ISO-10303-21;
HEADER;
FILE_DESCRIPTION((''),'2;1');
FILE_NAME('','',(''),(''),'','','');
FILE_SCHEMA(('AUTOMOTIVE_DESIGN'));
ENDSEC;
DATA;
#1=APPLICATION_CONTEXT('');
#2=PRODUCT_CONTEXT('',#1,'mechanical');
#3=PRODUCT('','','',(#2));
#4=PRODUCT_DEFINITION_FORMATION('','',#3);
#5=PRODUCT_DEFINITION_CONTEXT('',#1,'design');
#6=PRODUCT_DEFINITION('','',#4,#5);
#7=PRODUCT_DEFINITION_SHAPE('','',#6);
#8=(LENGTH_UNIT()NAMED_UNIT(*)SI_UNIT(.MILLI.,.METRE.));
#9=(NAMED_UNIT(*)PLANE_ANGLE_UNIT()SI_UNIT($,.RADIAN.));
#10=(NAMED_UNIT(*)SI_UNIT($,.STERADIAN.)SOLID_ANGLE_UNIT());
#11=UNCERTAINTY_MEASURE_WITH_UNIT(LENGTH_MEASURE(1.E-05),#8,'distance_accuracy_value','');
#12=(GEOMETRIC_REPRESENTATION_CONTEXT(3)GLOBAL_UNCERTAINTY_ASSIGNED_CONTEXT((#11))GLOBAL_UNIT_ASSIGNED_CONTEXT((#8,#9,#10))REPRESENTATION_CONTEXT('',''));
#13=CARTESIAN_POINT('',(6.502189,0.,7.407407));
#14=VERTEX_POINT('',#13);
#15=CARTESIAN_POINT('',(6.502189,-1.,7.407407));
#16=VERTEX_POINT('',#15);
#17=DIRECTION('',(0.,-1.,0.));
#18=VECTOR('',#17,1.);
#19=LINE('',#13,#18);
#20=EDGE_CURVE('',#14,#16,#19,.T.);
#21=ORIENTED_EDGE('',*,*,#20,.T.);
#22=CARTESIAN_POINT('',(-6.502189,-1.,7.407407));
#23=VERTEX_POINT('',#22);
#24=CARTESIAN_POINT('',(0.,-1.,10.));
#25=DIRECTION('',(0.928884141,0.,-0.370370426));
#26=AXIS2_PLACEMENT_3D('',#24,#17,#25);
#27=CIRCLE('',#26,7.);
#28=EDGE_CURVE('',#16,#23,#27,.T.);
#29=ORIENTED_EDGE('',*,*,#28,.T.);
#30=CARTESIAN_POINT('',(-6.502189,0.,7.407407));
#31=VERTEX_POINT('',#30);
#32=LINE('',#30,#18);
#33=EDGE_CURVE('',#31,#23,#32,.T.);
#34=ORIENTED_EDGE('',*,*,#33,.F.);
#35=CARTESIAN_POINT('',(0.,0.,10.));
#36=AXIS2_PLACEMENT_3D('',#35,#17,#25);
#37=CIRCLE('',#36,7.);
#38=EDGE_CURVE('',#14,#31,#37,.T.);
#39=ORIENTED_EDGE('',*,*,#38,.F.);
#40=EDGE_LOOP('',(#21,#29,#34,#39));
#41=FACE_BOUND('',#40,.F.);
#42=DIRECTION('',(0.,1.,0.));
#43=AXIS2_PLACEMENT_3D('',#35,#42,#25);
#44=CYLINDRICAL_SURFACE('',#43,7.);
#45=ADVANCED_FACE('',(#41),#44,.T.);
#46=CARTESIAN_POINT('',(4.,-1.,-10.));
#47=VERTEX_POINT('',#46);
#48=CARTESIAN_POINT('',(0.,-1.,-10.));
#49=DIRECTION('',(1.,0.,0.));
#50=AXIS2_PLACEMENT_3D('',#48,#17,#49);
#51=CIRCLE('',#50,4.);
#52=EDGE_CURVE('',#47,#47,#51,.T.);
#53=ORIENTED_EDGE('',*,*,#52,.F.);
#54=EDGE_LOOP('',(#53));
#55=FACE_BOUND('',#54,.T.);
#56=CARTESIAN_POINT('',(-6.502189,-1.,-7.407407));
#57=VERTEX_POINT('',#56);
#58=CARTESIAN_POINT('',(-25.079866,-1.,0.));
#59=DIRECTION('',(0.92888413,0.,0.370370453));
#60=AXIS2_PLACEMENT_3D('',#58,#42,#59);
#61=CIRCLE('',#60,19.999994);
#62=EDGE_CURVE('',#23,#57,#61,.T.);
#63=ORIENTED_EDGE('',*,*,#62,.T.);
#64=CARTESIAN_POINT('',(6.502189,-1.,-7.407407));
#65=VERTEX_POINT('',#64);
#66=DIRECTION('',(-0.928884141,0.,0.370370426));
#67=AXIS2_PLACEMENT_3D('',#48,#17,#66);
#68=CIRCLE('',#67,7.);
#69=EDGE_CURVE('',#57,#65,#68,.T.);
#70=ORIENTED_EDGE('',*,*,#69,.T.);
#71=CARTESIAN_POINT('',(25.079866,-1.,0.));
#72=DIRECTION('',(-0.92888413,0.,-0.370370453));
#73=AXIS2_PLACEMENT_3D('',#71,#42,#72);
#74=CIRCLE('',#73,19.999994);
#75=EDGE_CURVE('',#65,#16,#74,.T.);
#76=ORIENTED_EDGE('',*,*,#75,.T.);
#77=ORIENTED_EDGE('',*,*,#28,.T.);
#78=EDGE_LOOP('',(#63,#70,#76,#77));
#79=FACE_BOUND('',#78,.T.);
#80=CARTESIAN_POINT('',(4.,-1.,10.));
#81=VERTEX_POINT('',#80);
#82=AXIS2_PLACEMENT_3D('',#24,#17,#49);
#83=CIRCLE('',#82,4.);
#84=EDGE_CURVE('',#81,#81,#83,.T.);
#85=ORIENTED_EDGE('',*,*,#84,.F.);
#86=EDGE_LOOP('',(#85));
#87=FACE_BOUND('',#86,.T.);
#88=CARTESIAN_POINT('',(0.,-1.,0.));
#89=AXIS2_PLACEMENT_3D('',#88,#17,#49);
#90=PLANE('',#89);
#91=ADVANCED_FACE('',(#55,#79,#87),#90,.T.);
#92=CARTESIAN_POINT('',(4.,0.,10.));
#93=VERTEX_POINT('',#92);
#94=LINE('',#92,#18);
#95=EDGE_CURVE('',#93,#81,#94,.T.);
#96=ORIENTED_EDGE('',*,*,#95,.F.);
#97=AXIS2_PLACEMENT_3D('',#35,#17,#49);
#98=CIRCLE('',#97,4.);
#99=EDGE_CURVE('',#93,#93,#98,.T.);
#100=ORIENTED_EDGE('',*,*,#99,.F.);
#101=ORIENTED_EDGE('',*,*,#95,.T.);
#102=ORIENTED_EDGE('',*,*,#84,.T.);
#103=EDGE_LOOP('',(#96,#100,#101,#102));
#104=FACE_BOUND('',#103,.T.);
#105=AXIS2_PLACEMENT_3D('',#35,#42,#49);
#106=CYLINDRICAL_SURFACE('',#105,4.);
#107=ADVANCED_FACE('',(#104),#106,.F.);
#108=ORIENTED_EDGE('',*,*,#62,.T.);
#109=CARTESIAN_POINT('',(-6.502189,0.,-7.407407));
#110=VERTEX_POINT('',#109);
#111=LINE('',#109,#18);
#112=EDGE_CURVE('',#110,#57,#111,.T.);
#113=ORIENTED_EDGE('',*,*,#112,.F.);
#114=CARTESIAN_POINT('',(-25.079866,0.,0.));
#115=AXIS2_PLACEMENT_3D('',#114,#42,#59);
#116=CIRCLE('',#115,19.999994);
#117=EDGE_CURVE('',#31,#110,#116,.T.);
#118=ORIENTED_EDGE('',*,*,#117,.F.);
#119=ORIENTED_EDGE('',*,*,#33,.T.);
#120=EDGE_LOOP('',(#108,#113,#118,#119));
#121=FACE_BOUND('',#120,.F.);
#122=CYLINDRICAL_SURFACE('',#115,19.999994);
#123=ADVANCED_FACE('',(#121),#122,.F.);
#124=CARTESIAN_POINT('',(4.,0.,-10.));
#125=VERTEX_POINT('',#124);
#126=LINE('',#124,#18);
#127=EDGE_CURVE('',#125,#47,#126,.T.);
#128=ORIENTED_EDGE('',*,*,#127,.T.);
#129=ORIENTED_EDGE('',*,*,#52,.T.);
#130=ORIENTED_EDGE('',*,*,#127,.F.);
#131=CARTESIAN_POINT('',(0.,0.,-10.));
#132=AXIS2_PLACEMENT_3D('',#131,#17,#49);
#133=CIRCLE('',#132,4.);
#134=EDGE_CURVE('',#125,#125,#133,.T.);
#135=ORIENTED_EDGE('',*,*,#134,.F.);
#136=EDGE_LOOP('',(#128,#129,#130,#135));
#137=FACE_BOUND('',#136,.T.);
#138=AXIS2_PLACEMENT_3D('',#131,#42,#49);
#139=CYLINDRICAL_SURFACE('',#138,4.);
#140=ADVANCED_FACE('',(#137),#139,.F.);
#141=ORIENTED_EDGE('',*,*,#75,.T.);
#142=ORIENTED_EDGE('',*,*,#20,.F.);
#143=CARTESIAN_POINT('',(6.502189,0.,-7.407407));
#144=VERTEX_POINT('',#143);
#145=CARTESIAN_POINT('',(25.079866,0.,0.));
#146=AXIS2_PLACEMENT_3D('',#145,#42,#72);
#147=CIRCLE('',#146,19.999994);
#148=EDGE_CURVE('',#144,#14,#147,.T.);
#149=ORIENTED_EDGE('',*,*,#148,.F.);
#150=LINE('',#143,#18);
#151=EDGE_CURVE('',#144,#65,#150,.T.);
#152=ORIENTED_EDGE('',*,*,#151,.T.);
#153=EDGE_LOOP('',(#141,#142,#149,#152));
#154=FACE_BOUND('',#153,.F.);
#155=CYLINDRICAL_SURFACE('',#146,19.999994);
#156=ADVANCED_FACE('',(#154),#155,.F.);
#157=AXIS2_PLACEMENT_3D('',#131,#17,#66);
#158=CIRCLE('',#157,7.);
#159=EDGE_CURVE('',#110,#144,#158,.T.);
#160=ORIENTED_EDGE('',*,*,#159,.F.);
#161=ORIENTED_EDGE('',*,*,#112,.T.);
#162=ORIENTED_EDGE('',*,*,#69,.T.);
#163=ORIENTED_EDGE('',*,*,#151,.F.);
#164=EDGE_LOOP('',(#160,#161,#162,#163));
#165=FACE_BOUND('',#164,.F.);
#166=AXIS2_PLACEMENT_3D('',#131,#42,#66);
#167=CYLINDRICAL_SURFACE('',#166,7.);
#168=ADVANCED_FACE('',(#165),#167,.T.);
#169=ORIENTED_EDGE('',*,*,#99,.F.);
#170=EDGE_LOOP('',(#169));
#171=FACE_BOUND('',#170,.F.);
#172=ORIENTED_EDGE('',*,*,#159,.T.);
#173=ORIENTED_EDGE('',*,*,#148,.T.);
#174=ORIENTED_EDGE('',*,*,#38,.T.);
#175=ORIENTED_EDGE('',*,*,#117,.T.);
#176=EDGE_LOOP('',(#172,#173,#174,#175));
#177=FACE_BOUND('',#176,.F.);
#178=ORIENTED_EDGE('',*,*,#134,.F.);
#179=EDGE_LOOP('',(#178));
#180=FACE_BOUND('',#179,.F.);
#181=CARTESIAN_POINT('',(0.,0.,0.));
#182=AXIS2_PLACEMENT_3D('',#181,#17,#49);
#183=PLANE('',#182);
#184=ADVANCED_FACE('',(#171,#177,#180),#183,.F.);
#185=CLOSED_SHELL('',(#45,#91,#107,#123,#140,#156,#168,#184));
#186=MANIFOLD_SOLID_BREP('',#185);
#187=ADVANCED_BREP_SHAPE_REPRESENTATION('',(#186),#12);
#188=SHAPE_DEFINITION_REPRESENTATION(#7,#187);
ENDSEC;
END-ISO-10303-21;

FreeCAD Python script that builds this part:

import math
import FreeCAD as App
import Part
import Sketcher
from FreeCAD import Vector
Q = App.Units.Quantity

doc = App.newDocument("Part")
params = doc.addObject("Spreadsheet::Sheet", "Params")
for row, (alias, value) in enumerate([
    ("sketch1_diameter", "8 mm"),
    ("sketch1_radius", "7 mm"),
    ("pad1_length", "1 mm"),
], start=1):
    params.set(f"A{row}", alias)
    params.set(f"B{row}", "=" + value)
    params.setAlias(f"B{row}", alias)

body = doc.addObject("PartDesign::Body", "Body")

sketch1 = doc.addObject("Sketcher::SketchObject", "Sketch")
body.addObject(sketch1)
sketch1.AttachmentSupport = (doc.XZ_Plane, [""])
sketch1.MapMode = "FlatFace"
sketch1.addGeometry(Part.ArcOfCircle(Part.Circle(Vector(25.1, 0, 0), Vector(0, 0, 1), 20), math.radians(158), math.radians(202)), False)
sketch1.addGeometry(Part.ArcOfCircle(Part.Circle(Vector(0, 10, 0), Vector(0, 0, 1), 7), math.radians(-22), math.radians(202)), False)
sketch1.addGeometry(Part.ArcOfCircle(Part.Circle(Vector(-25.1, 0, 0), Vector(0, 0, 1), 20), math.radians(-22), math.radians(22)), False)
sketch1.addGeometry(Part.ArcOfCircle(Part.Circle(Vector(0, -10, 0), Vector(0, 0, 1), 7), math.radians(158), math.radians(382)), False)
sketch1.addGeometry(Part.Circle(Vector(0, -10, 0), Vector(0, 0, 1), 4), False)
sketch1.addGeometry(Part.Circle(Vector(0, 10, 0), Vector(0, 0, 1), 4), False)
sketch1.addConstraint(Sketcher.Constraint("Tangent", 0, 1, 1, 1))
sketch1.addConstraint(Sketcher.Constraint("Tangent", 1, 2, 2, 2))
sketch1.addConstraint(Sketcher.Constraint("Tangent", 2, 1, 3, 1))
sketch1.addConstraint(Sketcher.Constraint("Tangent", 3, 2, 0, 2))
sketch1.addConstraint(Sketcher.Constraint("Coincident", 4, 3, 3, 3))
sketch1.addConstraint(Sketcher.Constraint("Coincident", 5, 3, 1, 3))
sketch1.addConstraint(Sketcher.Constraint("Equal", 0, 2))
sketch1.addConstraint(Sketcher.Constraint("Equal", 1, 3))
sketch1.addConstraint(Sketcher.Constraint("Equal", 4, 5))
sketch1.addConstraint(Sketcher.Constraint("Symmetric", 0, 3, 2, 3, -1, 1))
sketch1.addConstraint(Sketcher.Constraint("PointOnObject", 0, 3, -1))
sketch1.addConstraint(Sketcher.Constraint("Diameter", 4, Q("8 mm")))
sketch1.addConstraint(Sketcher.Constraint("Radius", 1, Q("7 mm")))
sketch1.addConstraint(Sketcher.Constraint("DistanceY", -1, 1, 1, 3, Q("10 mm")))
sketch1.addConstraint(Sketcher.Constraint("Radius", 0, Q("19.999994 mm")))
sketch1.setExpression("Constraints[11]", "Params.sketch1_diameter")
sketch1.setExpression("Constraints[12]", "Params.sketch1_radius")
pad1 = doc.addObject("PartDesign::Pad", "Pad")
body.addObject(pad1)
pad1.Profile = sketch1
pad1.setExpression("Length", "Params.pad1_length")

doc.recompute()
